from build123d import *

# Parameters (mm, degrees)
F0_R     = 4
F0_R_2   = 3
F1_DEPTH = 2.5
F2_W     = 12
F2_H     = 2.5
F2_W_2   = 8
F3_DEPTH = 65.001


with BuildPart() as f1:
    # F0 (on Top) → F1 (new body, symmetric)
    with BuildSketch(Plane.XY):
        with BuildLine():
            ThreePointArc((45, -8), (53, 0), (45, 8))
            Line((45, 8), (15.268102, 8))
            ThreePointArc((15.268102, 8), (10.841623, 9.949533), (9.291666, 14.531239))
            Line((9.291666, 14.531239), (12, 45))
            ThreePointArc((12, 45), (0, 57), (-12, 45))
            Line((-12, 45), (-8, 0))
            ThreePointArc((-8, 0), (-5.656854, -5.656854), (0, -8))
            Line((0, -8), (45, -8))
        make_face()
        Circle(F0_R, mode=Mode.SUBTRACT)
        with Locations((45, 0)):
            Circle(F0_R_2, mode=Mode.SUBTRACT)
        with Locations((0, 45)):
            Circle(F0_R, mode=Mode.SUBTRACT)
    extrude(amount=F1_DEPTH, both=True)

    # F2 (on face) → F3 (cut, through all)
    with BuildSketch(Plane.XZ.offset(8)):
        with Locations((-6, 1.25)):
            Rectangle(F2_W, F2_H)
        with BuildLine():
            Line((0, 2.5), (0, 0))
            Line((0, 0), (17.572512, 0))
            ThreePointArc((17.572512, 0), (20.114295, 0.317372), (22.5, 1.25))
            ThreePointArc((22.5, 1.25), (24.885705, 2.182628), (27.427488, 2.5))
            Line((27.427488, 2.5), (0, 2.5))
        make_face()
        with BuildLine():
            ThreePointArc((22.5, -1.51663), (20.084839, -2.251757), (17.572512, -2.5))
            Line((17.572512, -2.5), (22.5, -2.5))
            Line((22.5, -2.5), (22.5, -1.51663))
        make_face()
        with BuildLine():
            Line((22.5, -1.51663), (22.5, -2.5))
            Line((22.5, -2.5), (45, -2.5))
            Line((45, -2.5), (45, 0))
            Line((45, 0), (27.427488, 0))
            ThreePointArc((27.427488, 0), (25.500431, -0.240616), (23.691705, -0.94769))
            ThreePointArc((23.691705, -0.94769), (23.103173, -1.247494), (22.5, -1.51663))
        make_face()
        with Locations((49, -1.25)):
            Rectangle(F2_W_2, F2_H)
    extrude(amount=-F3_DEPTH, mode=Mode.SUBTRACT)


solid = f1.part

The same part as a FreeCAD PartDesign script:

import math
import FreeCAD as App
import Part
import Sketcher
Q = App.Units.Quantity

doc = App.newDocument("Part")
body = doc.addObject("PartDesign::Body", "Body")

# Sketch on XY plane
sketch1 = body.newObject("Sketcher::SketchObject", "Sketch")
sketch1.AttachmentSupport = (doc.getObject("XY_Plane"), [""])
sketch1.MapMode = "FlatFace"
sketch1.addGeometry(Part.ArcOfCircle(Part.Circle(App.Vector(45, 0, 0), App.Vector(0, 0, 1), 8), math.radians(-90), math.radians(90)), False)
sketch1.addGeometry(Part.LineSegment(App.Vector(45, 8, 0), App.Vector(15.3, 8, 0)), False)
sketch1.addGeometry(Part.ArcOfCircle(Part.Circle(App.Vector(15.3, 14, 0), App.Vector(0, 0, 1), 6), math.radians(175), math.radians(270)), False)
sketch1.addGeometry(Part.LineSegment(App.Vector(9.3, 14.5, 0), App.Vector(12, 45, 0)), False)
sketch1.addGeometry(Part.ArcOfCircle(Part.Circle(App.Vector(0, 45, 0), App.Vector(0, 0, 1), 12), math.radians(0), math.radians(180)), False)
sketch1.addGeometry(Part.LineSegment(App.Vector(-12, 45, 0), App.Vector(-8, 0, 0)), False)
sketch1.addGeometry(Part.ArcOfCircle(Part.Circle(App.Vector(0, 0, 0), App.Vector(0, 0, 1), 8), math.radians(-180), math.radians(-90)), False)
sketch1.addGeometry(Part.LineSegment(App.Vector(0, -8, 0), App.Vector(45, -8, 0)), False)
sketch1.addGeometry(Part.Circle(App.Vector(0, 0, 0), App.Vector(0, 0, 1), 4), False)
sketch1.addGeometry(Part.Circle(App.Vector(45, 0, 0), App.Vector(0, 0, 1), 3), False)
sketch1.addGeometry(Part.Circle(App.Vector(0, 45, 0), App.Vector(0, 0, 1), 4), False)
sketch1.addConstraint(Sketcher.Constraint("Tangent", 0, 2, 1, 1))
sketch1.addConstraint(Sketcher.Constraint("Tangent", 1, 2, 2, 2))
sketch1.addConstraint(Sketcher.Constraint("Tangent", 2, 1, 3, 1))
sketch1.addConstraint(Sketcher.Constraint("Coincident", 3, 2, 4, 1))
sketch1.addConstraint(Sketcher.Constraint("Coincident", 4, 2, 5, 1))
sketch1.addConstraint(Sketcher.Constraint("Coincident", 5, 2, 6, 1))
sketch1.addConstraint(Sketcher.Constraint("Tangent", 6, 2, 7, 1))
sketch1.addConstraint(Sketcher.Constraint("Tangent", 7, 2, 0, 1))
sketch1.addConstraint(Sketcher.Constraint("Horizontal", 1))
sketch1.addConstraint(Sketcher.Constraint("Horizontal", 7))
sketch1.addConstraint(Sketcher.Constraint("Coincident", 6, 3, -1, 1))
sketch1.addConstraint(Sketcher.Constraint("Coincident", 8, 3, -1, 1))
sketch1.addConstraint(Sketcher.Constraint("Coincident", 9, 3, 0, 3))
sketch1.addConstraint(Sketcher.Constraint("Coincident", 10, 3, 4, 3))
sketch1.addConstraint(Sketcher.Constraint("Equal", 0, 6))
sketch1.addConstraint(Sketcher.Constraint("Equal", 8, 10))
sketch1.addConstraint(Sketcher.Constraint("Symmetric", 3, 2, 4, 2, -2))
sketch1.addConstraint(Sketcher.Constraint("PointOnObject", 5, 2, -1))
sketch1.addConstraint(Sketcher.Constraint("Horizontal", 10, 3, 3, 2))
sketch1.addConstraint(Sketcher.Constraint("Diameter", 8, Q("8 mm")))
sketch1.addConstraint(Sketcher.Constraint("Diameter", 9, Q("6 mm")))
sketch1.addConstraint(Sketcher.Constraint("Radius", 0, Q("8 mm")))
sketch1.addConstraint(Sketcher.Constraint("Radius", 2, Q("6 mm")))
sketch1.addConstraint(Sketcher.Constraint("Radius", 4, Q("12 mm")))
sketch1.addConstraint(Sketcher.Constraint("DistanceX", 7, 1, 7, 2, Q("45 mm")))
sketch1.addConstraint(Sketcher.Constraint("DistanceY", -1, 1, 4, 3, Q("45 mm")))
sketch1.addConstraint(Sketcher.Constraint("DistanceX", 1, 2, 1, 1, Q("29.731898 mm")))
pad1 = body.newObject("PartDesign::Pad", "Pad")
pad1.Profile = sketch1
pad1.Length = 5
pad1.Midplane = True

# Sketch on XZ plane
sketch2 = body.newObject("Sketcher::SketchObject", "Sketch001")
sketch2.AttachmentSupport = (doc.getObject("XZ_Plane"), [""])
sketch2.MapMode = "FlatFace"
sketch2.AttachmentOffset = App.Placement(App.Vector(0, 0, 8), App.Rotation())
sketch2.addGeometry(Part.LineSegment(App.Vector(-12, 2.5, 0), App.Vector(-12, 0, 0)), False)
sketch2.addGeometry(Part.LineSegment(App.Vector(-12, 0, 0), App.Vector(17.572512, 0, 0)), False)
sketch2.addGeometry(Part.ArcOfCircle(Part.Circle(App.Vector(17.572513, 10.337052, 0), App.Vector(0, 0, 1), 10.337052), math.radians(-90.000004), math.radians(-61.531075)), False)
sketch2.addGeometry(Part.ArcOfCircle(Part.Circle(App.Vector(27.427487, -7.837052, 0), App.Vector(0, 0, 1), 10.337052), math.radians(89.999996), math.radians(118.468925)), False)
sketch2.addGeometry(Part.LineSegment(App.Vector(27.427488, 2.5, 0), App.Vector(-12, 2.5, 0)), False)
sketch2.addGeometry(Part.ArcOfCircle(Part.Circle(App.Vector(17.572509, 10.337073, 0), App.Vector(0, 0, 1), 12.837073), math.radians(-89.999986), math.radians(-67.427728)), False)
sketch2.addGeometry(Part.LineSegment(App.Vector(17.572512, -2.5, 0), App.Vector(53, -2.5, 0)), False)
sketch2.addGeometry(Part.LineSegment(App.Vector(53, -2.5, 0), App.Vector(53, 0, 0)), False)
sketch2.addGeometry(Part.LineSegment(App.Vector(53, 0, 0), App.Vector(27.427488, 0, 0)), False)
sketch2.addGeometry(Part.ArcOfCircle(Part.Circle(App.Vector(27.427486, -7.837042, 0), App.Vector(0, 0, 1), 7.837042), math.radians(89.999982), math.radians(118.468952)), False)
sketch2.addGeometry(Part.ArcOfCircle(Part.Circle(App.Vector(17.572479, 10.337129, 0), App.Vector(0, 0, 1), 12.837136), math.radians(-67.427703), math.radians(-61.53111)), False)
sketch2.addConstraint(Sketcher.Constraint("Coincident", 0, 2, 1, 1))
sketch2.addConstraint(Sketcher.Constraint("Coincident", 1, 2, 2, 1))
sketch2.addConstraint(Sketcher.Constraint("Coincident", 2, 2, 3, 2))
sketch2.addConstraint(Sketcher.Constraint("Coincident", 3, 1, 4, 1))
sketch2.addConstraint(Sketcher.Constraint("Coincident", 4, 2, 0, 1))
sketch2.addConstraint(Sketcher.Constraint("Coincident", 5, 1, 6, 1))
sketch2.addConstraint(Sketcher.Constraint("Coincident", 6, 2, 7, 1))
sketch2.addConstraint(Sketcher.Constraint("Coincident", 7, 2, 8, 1))
sketch2.addConstraint(Sketcher.Constraint("Coincident", 8, 2, 9, 1))
sketch2.addConstraint(Sketcher.Constraint("Coincident", 9, 2, 10, 2))
sketch2.addConstraint(Sketcher.Constraint("Coincident", 10, 1, 5, 2))
sketch2.addConstraint(Sketcher.Constraint("Vertical", 0))
sketch2.addConstraint(Sketcher.Constraint("Horizontal", 1))
sketch2.addConstraint(Sketcher.Constraint("Horizontal", 4))
sketch2.addConstraint(Sketcher.Constraint("Horizontal", 6))
sketch2.addConstraint(Sketcher.Constraint("Vertical", 7))
sketch2.addConstraint(Sketcher.Constraint("Horizontal", 8))
sketch2.addConstraint(Sketcher.Constraint("PointOnObject", 0, 2, -1))
sketch2.addConstraint(Sketcher.Constraint("PointOnObject", 7, 2, -1))
sketch2.addConstraint(Sketcher.Constraint("DistanceY", 0, 2, 0, 1, Q("2.5 mm")))
sketch2.addConstraint(Sketcher.Constraint("DistanceY", 7, 1, 7, 2, Q("2.5 mm")))
sketch2.addConstraint(Sketcher.Constraint("DistanceX", 0, 2, -1, 1, Q("12 mm")))
sketch2.addConstraint(Sketcher.Constraint("DistanceX", -1, 1, 6, 2, Q("53 mm")))
sketch2.addConstraint(Sketcher.Constraint("DistanceX", -1, 1, 2, 2, Q("22.5 mm")))
sketch2.addConstraint(Sketcher.Constraint("DistanceX", -1, 1, 10, 1, Q("22.5 mm")))
sketch2.addConstraint(Sketcher.Constraint("DistanceY", -1, 1, 2, 2, Q("1.25 mm")))
sketch2.addConstraint(Sketcher.Constraint("Radius", 2, Q("10.337052 mm")))
sketch2.addConstraint(Sketcher.Constraint("Radius", 3, Q("10.337052 mm")))
sketch2.addConstraint(Sketcher.Constraint("Radius", 5, Q("12.837073 mm")))
sketch2.addConstraint(Sketcher.Constraint("Radius", 9, Q("7.837042 mm")))
sketch2.addConstraint(Sketcher.Constraint("Radius", 10, Q("12.837136 mm")))
sketch2.addConstraint(Sketcher.Constraint("DistanceX", 1, 1, 1, 2, Q("29.572512 mm")))
sketch2.addConstraint(Sketcher.Constraint("DistanceX", 8, 2, 8, 1, Q("25.572512 mm")))
sketch2.addConstraint(Sketcher.Constraint("DistanceX", 4, 2, 4, 1, Q("39.427488 mm")))
sketch2.addConstraint(Sketcher.Constraint("DistanceX", 6, 1, 6, 2, Q("35.427488 mm")))
sketch2.addConstraint(Sketcher.Constraint("DistanceX", -1, 1, 5, 3, Q("17.572509 mm")))
sketch2.addConstraint(Sketcher.Constraint("DistanceX", -1, 1, 10, 3, Q("17.572479 mm")))
sketch2.addConstraint(Sketcher.Constraint("DistanceY", 9, 2, -1, 1, Q("0.94769 mm")))
pocket1 = body.newObject("PartDesign::Pocket", "Pocket")
pocket1.Profile = sketch2
pocket1.Type = "ThroughAll"

doc.recompute()
